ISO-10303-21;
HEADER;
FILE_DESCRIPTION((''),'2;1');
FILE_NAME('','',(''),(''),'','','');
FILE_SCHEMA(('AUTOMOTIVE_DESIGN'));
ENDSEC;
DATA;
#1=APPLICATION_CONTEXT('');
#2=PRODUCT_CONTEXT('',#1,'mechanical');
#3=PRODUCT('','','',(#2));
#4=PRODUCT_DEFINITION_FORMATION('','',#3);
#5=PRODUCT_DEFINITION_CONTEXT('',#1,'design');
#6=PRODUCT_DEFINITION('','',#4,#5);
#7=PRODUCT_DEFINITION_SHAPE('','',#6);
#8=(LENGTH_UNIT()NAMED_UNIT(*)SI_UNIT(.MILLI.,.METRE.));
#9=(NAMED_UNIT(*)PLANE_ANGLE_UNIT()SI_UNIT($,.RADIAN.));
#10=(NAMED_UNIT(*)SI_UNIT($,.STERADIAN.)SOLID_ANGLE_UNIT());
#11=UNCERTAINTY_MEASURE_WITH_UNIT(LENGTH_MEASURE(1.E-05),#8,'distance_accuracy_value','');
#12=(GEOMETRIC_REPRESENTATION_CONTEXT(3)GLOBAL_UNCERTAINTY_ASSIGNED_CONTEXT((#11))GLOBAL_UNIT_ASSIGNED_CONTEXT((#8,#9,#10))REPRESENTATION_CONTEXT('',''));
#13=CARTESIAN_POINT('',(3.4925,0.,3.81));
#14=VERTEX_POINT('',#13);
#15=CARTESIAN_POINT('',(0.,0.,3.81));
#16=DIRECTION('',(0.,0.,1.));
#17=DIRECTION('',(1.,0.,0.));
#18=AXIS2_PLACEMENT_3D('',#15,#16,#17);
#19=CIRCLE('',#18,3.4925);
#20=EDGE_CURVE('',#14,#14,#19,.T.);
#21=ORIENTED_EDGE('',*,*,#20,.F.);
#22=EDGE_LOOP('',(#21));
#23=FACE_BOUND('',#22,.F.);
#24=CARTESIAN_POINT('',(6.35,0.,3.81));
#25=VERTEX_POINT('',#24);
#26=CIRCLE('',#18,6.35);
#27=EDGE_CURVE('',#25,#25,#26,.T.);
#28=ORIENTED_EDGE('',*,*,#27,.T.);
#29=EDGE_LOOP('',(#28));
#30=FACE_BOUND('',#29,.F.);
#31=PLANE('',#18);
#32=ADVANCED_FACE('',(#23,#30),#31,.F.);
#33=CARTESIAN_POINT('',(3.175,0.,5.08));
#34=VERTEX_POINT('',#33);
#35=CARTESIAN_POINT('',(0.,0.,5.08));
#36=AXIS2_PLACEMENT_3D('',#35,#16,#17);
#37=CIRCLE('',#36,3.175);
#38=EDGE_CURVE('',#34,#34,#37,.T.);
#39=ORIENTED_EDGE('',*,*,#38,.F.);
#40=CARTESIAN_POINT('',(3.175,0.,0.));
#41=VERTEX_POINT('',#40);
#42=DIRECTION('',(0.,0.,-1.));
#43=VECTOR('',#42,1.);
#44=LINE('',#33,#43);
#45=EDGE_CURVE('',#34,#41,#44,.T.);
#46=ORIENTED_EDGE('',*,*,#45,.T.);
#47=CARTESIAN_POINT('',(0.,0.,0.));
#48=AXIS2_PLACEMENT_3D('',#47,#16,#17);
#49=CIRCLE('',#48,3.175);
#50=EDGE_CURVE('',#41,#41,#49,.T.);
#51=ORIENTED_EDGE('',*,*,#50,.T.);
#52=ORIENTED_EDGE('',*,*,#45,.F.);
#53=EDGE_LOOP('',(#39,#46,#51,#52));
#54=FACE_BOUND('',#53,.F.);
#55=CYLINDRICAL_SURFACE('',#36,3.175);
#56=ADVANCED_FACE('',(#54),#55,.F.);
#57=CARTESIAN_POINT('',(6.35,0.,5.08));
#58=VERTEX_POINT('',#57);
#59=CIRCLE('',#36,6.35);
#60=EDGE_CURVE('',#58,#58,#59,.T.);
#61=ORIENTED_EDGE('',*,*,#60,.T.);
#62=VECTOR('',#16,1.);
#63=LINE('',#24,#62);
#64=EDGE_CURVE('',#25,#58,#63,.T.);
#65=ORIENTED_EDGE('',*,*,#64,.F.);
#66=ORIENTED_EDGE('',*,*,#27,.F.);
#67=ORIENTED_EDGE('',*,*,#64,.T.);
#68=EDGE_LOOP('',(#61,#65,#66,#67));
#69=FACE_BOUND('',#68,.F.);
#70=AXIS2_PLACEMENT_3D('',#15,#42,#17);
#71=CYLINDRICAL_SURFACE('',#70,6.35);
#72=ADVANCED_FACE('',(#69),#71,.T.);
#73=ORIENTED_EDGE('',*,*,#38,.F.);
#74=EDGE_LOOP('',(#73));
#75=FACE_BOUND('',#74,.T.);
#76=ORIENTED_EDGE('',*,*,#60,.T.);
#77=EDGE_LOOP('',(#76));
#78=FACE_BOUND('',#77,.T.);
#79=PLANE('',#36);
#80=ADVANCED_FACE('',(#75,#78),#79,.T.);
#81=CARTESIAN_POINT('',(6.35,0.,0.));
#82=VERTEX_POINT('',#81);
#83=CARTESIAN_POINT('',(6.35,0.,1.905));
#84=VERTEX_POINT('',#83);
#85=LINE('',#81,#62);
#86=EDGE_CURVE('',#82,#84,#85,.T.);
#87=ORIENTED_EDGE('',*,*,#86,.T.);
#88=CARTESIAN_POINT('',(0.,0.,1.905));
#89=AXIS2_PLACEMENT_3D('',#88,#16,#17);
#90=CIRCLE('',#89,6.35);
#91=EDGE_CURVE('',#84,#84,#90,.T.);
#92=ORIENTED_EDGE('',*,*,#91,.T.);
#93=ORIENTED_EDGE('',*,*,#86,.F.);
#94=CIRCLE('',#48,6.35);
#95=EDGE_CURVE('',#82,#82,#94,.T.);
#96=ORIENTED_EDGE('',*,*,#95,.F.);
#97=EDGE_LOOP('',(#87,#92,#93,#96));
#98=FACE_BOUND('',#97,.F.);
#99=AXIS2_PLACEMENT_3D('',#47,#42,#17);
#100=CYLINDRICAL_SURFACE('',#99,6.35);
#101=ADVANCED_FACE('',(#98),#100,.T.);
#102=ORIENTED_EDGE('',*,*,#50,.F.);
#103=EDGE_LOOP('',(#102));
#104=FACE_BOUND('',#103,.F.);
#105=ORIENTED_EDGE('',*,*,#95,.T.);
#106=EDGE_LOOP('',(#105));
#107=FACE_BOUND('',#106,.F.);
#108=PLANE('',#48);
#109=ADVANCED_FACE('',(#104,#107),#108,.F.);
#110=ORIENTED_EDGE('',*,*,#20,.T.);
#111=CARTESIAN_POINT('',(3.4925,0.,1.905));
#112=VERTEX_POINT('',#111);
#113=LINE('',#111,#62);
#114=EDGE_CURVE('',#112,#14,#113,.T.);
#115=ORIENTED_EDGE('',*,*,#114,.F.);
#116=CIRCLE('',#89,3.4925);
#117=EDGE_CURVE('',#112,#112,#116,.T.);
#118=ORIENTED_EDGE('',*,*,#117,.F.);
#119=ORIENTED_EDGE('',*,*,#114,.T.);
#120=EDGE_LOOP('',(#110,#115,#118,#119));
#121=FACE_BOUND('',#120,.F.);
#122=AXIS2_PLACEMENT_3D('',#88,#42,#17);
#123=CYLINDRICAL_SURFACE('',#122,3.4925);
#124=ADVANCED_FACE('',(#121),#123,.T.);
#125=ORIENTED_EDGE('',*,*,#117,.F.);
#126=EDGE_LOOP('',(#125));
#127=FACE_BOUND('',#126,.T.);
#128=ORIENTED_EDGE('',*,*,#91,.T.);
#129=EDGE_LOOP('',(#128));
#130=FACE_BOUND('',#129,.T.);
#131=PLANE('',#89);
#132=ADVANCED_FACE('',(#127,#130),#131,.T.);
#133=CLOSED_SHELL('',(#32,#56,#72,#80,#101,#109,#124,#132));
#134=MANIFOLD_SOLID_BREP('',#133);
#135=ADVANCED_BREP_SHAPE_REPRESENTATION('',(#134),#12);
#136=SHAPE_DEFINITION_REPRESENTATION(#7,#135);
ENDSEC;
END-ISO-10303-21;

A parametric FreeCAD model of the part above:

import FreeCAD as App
import Part
import Sketcher

V = App.Vector
Q = App.Units.Quantity

doc = App.newDocument("Part")
params = doc.addObject("Spreadsheet::Sheet", "Params")
for row, (alias, value) in enumerate([
    ("sketch1_diameter", "0.5 in"),
    ("pad1_length", "0.075 in"),
    ("sketch2_diameter", "0.275 in"),
    ("pad2_length", "0.075 in"),
    ("sketch3_diameter", "0.5 in"),
    ("pad3_length", "0.05 in"),
    ("sketch4_diameter", "0.25 in"),
], start=1):
    params.set(f"A{row}", alias)
    params.set(f"B{row}", "=" + value)
    params.setAlias(f"B{row}", alias)

body = doc.addObject("PartDesign::Body", "Body")

sketch1 = doc.addObject("Sketcher::SketchObject", "Sketch")
body.addObject(sketch1)
sketch1.AttachmentSupport = (doc.XY_Plane, [""])
sketch1.MapMode = "FlatFace"
sketch1.addGeometry(Part.Circle(V(0, 0, 0), V(0, 0, 1), 6), False)
sketch1.addConstraint(Sketcher.Constraint("Coincident", 0, 3, -1, 1))
sketch1.addConstraint(Sketcher.Constraint("Diameter", 0, Q("0.5 in")))
sketch1.setExpression("Constraints[1]", "Params.sketch1_diameter")
pad1 = doc.addObject("PartDesign::Pad", "Pad")
body.addObject(pad1)
pad1.Profile = sketch1
pad1.setExpression("Length", "Params.pad1_length")

sketch2 = doc.addObject("Sketcher::SketchObject", "Sketch001")
body.addObject(sketch2)
sketch2.AttachmentSupport = (doc.XY_Plane, [""])
sketch2.MapMode = "FlatFace"
sketch2.AttachmentOffset = App.Placement(V(0, 0, 0.075 * 25.4), App.Rotation())
sketch2.addGeometry(Part.Circle(V(0, 0, 0), V(0, 0, 1), 3.5), False)
sketch2.addConstraint(Sketcher.Constraint("Coincident", 0, 3, -1, 1))
sketch2.addConstraint(Sketcher.Constraint("Diameter", 0, Q("0.275 in")))
sketch2.setExpression("Constraints[1]", "Params.sketch2_diameter")
pad2 = doc.addObject("PartDesign::Pad", "Pad001")
body.addObject(pad2)
pad2.Profile = sketch2
pad2.setExpression("Length", "Params.pad2_length")

sketch3 = doc.addObject("Sketcher::SketchObject", "Sketch002")
body.addObject(sketch3)
sketch3.AttachmentSupport = (doc.XY_Plane, [""])
sketch3.MapMode = "FlatFace"
sketch3.AttachmentOffset = App.Placement(V(0, 0, 0.15 * 25.4), App.Rotation())
sketch3.addGeometry(Part.Circle(V(0, 0, 0), V(0, 0, 1), 6), False)
sketch3.addConstraint(Sketcher.Constraint("Coincident", 0, 3, -1, 1))
sketch3.addConstraint(Sketcher.Constraint("Diameter", 0, Q("0.5 in")))
sketch3.setExpression("Constraints[1]", "Params.sketch3_diameter")
pad3 = doc.addObject("PartDesign::Pad", "Pad002")
body.addObject(pad3)
pad3.Profile = sketch3
pad3.setExpression("Length", "Params.pad3_length")

sketch4 = doc.addObject("Sketcher::SketchObject", "Sketch003")
body.addObject(sketch4)
sketch4.AttachmentSupport = (doc.XY_Plane, [""])
sketch4.MapMode = "FlatFace"
sketch4.AttachmentOffset = App.Placement(V(0, 0, 0.2 * 25.4), App.Rotation())
sketch4.addGeometry(Part.Circle(V(0, 0, 0), V(0, 0, 1), 3.2), False)
sketch4.addConstraint(Sketcher.Constraint("Coincident", 0, 3, -1, 1))
sketch4.addConstraint(Sketcher.Constraint("Diameter", 0, Q("0.25 in")))
sketch4.setExpression("Constraints[1]", "Params.sketch4_diameter")
pocket1 = doc.addObject("PartDesign::Pocket", "Pocket")
body.addObject(pocket1)
pocket1.Profile = sketch4
pocket1.Type = "ThroughAll"

doc.recompute()
